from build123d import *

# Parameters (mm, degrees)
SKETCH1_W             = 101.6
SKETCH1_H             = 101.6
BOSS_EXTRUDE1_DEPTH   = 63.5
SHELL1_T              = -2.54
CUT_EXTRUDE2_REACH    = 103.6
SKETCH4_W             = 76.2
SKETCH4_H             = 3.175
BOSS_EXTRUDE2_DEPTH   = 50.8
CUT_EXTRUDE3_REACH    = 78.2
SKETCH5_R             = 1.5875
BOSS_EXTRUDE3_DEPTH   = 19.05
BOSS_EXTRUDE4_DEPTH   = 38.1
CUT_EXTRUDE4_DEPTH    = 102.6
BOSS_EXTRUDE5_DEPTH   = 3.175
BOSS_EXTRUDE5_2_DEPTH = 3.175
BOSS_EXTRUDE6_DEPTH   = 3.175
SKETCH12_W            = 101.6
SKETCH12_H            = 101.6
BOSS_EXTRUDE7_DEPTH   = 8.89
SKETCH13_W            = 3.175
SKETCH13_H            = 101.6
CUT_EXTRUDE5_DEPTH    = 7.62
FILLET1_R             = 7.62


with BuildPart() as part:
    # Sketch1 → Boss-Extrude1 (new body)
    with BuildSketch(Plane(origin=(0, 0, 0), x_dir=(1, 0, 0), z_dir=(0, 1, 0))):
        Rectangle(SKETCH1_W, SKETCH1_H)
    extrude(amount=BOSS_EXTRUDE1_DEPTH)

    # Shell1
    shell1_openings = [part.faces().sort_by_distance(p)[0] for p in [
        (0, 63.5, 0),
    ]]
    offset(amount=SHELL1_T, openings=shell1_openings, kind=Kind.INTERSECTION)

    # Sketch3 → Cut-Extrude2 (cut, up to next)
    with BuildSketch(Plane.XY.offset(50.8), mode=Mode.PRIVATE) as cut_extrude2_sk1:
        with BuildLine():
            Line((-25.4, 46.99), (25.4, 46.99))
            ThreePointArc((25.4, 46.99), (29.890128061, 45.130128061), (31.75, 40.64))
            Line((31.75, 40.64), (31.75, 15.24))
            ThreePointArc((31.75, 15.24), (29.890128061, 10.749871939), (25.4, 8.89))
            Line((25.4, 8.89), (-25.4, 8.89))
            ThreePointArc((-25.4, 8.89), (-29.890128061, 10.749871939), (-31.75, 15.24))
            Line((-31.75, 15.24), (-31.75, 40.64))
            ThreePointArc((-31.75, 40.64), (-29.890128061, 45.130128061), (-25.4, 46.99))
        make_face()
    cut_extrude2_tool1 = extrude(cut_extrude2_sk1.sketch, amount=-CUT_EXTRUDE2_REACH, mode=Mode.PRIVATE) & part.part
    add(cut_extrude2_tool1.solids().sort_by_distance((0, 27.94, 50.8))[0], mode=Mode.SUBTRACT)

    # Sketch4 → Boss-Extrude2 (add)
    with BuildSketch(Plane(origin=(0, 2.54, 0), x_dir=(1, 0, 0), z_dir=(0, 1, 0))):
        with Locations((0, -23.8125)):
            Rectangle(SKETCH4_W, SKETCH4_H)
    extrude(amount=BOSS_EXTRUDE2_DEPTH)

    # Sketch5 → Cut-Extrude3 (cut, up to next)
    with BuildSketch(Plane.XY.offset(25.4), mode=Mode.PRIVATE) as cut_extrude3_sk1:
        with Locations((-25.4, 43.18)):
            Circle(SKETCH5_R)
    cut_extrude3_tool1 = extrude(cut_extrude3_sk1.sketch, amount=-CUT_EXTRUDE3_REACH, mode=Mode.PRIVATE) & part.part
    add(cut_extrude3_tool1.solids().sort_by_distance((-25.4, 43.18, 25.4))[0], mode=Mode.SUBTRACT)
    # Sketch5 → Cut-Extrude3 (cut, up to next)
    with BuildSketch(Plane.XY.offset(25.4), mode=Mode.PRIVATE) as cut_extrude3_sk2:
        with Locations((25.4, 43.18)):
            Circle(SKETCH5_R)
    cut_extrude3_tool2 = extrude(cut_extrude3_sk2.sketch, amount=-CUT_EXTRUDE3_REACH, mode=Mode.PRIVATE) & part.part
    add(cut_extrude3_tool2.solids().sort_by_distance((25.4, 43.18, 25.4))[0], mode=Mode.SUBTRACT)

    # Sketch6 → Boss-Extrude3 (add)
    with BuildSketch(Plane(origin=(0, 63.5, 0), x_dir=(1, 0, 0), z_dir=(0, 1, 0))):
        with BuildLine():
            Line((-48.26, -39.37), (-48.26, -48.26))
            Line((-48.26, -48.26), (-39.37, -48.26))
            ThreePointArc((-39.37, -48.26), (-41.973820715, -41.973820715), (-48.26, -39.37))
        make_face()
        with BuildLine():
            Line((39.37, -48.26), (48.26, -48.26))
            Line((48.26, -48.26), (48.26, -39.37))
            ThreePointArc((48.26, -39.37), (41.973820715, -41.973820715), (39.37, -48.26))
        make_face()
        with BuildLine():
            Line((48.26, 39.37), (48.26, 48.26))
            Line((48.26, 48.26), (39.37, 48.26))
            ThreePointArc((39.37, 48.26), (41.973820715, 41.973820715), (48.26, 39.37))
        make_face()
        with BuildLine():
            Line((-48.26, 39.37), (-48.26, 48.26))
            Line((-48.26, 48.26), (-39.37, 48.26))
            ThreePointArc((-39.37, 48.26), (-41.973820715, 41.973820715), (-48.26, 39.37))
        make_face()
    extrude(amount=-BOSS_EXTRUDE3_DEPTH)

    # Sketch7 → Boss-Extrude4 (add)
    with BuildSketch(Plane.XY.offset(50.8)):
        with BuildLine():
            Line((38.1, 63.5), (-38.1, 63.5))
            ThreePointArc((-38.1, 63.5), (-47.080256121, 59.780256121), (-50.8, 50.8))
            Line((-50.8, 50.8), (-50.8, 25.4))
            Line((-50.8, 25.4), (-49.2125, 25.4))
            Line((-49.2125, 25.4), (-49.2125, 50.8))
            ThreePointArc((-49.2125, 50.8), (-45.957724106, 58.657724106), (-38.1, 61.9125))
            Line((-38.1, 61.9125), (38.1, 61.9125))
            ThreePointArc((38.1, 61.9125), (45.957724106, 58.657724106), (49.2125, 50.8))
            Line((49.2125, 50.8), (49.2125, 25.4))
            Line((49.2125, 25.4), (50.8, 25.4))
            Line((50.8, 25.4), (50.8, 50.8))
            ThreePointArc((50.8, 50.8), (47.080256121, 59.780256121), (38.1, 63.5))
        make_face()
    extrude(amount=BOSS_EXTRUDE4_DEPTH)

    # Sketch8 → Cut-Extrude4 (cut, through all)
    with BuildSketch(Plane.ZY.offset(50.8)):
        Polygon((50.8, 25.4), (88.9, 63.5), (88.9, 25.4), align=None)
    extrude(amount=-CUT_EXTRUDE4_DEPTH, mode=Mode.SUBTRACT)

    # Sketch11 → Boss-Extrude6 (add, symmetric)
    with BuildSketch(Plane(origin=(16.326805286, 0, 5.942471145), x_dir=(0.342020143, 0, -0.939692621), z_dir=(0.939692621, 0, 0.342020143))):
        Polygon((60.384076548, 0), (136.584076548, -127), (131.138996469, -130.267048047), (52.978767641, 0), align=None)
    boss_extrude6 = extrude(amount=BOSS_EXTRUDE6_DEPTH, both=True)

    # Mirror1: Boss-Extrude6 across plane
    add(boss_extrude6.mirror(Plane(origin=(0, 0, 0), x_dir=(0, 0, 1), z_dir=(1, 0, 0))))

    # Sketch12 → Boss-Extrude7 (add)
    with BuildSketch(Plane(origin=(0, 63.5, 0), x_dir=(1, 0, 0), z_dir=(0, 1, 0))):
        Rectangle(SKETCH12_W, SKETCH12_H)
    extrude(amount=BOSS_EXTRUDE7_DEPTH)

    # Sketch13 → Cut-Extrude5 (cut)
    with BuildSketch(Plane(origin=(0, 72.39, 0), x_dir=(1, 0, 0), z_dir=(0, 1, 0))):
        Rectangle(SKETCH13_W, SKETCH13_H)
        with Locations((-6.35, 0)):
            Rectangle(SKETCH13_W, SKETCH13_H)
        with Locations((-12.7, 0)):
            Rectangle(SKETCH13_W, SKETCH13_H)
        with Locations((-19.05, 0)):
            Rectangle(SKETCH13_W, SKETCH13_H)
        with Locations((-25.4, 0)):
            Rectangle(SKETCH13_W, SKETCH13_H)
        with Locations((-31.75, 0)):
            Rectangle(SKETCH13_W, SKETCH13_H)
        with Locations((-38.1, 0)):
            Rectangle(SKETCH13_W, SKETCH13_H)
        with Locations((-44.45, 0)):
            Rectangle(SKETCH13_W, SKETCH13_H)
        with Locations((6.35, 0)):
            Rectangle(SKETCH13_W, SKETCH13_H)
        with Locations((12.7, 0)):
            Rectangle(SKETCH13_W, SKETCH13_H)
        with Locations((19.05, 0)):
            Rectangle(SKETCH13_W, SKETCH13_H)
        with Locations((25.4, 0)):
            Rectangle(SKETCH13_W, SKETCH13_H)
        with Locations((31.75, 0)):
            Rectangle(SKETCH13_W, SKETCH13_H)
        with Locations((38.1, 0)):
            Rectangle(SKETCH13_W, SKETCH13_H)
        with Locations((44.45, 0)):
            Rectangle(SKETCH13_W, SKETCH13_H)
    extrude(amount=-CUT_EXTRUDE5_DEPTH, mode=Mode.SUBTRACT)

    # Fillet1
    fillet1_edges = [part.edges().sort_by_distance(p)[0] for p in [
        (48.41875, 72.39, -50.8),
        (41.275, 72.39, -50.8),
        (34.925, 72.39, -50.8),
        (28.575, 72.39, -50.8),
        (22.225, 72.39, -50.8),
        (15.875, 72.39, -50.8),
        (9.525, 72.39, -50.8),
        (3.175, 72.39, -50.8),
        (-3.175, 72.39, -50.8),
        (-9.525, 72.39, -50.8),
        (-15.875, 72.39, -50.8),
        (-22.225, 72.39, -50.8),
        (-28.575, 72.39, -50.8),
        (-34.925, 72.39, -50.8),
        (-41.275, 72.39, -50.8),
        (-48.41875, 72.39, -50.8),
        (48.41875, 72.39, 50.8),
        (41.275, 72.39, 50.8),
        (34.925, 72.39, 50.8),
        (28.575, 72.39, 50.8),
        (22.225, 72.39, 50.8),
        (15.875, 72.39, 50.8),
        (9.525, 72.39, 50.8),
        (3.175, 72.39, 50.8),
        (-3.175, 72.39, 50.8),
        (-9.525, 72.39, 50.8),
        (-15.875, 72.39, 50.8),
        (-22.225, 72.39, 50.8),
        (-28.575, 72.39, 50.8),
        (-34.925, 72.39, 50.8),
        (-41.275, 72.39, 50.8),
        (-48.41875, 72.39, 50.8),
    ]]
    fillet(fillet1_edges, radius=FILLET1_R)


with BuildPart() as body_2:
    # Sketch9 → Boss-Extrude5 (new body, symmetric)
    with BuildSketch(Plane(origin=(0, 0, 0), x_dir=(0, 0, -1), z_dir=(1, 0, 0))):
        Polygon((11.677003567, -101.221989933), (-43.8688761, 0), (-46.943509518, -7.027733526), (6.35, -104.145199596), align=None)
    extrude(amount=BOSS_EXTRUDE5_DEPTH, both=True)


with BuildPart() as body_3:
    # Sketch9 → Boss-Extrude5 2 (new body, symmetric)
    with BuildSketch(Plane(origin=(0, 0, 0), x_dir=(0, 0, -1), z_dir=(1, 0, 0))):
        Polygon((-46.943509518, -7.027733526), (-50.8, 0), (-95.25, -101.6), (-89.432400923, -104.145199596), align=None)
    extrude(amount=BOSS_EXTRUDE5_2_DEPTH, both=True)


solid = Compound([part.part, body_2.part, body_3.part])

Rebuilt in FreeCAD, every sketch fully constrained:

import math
import FreeCAD as App
import Part
import Sketcher
Q = App.Units.Quantity


def edges_at(feature, points):
    """Names of the edges that pass closest to the given points."""
    edges = feature.Shape.Edges
    near = lambda p: min(range(len(edges)), key=lambda i: edges[i].distToShape(Part.Vertex(*p))[0])
    return sorted({f"Edge{near(p) + 1}" for p in points})


def faces_at(feature, points):
    """Names of the faces that lie closest to the given points."""
    faces = feature.Shape.Faces
    near = lambda p: min(range(len(faces)), key=lambda i: faces[i].distToShape(Part.Vertex(*p))[0])
    return sorted({f"Face{near(p) + 1}" for p in points})

doc = App.newDocument("Part")
body = doc.addObject("PartDesign::Body", "Body")

sketch1 = body.newObject("Sketcher::SketchObject", "Sketch")
sketch1.AttachmentSupport = (doc.getObject("XZ_Plane"), [""])
sketch1.MapMode = "FlatFace"
sketch1.addGeometry([
    Part.LineSegment(App.Vector(-50.8, -50.8, 0), App.Vector(-50.8, 50.8, 0)),
    Part.LineSegment(App.Vector(-50.8, 50.8, 0), App.Vector(50.8, 50.8, 0)),
    Part.LineSegment(App.Vector(50.8, 50.8, 0), App.Vector(50.8, -50.8, 0)),
    Part.LineSegment(App.Vector(50.8, -50.8, 0), App.Vector(-50.8, -50.8, 0)),
], False)
sketch1.addConstraint([
    Sketcher.Constraint("Coincident", 0, 2, 1, 1),
    Sketcher.Constraint("Coincident", 1, 2, 2, 1),
    Sketcher.Constraint("Coincident", 2, 2, 3, 1),
    Sketcher.Constraint("Coincident", 3, 2, 0, 1),
    Sketcher.Constraint("Vertical", 0),
    Sketcher.Constraint("Horizontal", 1),
    Sketcher.Constraint("Vertical", 2),
    Sketcher.Constraint("Horizontal", 3),
    Sketcher.Constraint("Symmetric", 0, 2, 2, 2, -1, 1),
    Sketcher.Constraint("Equal", 3, 0),
    Sketcher.Constraint("DistanceX", 1, 1, 1, 2, Q("4 in")),
])
pad1 = body.newObject("PartDesign::Pad", "Pad")
pad1.Profile = sketch1
pad1.Length = Q("2.5 in")
pad1.Reversed = True
doc.recompute()

thickness = body.newObject("PartDesign::Thickness", "Thickness")
thickness.Base = (pad1, faces_at(pad1, [(0, 63.5, 0)]))
thickness.Value = Q("0.1 in")
thickness.Reversed = True
thickness.Join = "Intersection"

sketch2 = body.newObject("Sketcher::SketchObject", "Sketch001")
sketch2.AttachmentSupport = (doc.getObject("XY_Plane"), [""])
sketch2.MapMode = "FlatFace"
sketch2.AttachmentOffset = App.Placement(App.Vector(0, 0, 2 * 25.4), App.Rotation())
sketch2.addGeometry([
    Part.LineSegment(App.Vector(25.4, 46.99, 0), App.Vector(-25.4, 46.99, 0)),
    Part.ArcOfCircle(Part.Circle(App.Vector(-25.4, 40.64, 0), App.Vector(0, 0, 1), 6.35), math.radians(90), math.radians(180)),
    Part.LineSegment(App.Vector(-31.75, 40.64, 0), App.Vector(-31.75, 15.24, 0)),
    Part.ArcOfCircle(Part.Circle(App.Vector(-25.4, 15.24, 0), App.Vector(0, 0, 1), 6.35), math.radians(180), math.radians(270)),
    Part.LineSegment(App.Vector(-25.4, 8.89, 0), App.Vector(25.4, 8.89, 0)),
    Part.ArcOfCircle(Part.Circle(App.Vector(25.4, 15.24, 0), App.Vector(0, 0, 1), 6.35), math.radians(-90), math.radians(0)),
    Part.LineSegment(App.Vector(31.75, 15.24, 0), App.Vector(31.75, 40.64, 0)),
    Part.ArcOfCircle(Part.Circle(App.Vector(25.4, 40.64, 0), App.Vector(0, 0, 1), 6.35), math.radians(0), math.radians(90)),
], False)
sketch2.addConstraint([
    Sketcher.Constraint("Tangent", 0, 2, 1, 1),
    Sketcher.Constraint("Tangent", 1, 2, 2, 1),
    Sketcher.Constraint("Tangent", 2, 2, 3, 1),
    Sketcher.Constraint("Tangent", 3, 2, 4, 1),
    Sketcher.Constraint("Tangent", 4, 2, 5, 1),
    Sketcher.Constraint("Tangent", 5, 2, 6, 1),
    Sketcher.Constraint("Tangent", 6, 2, 7, 1),
    Sketcher.Constraint("Tangent", 7, 2, 0, 1),
    Sketcher.Constraint("Horizontal", 0),
    Sketcher.Constraint("Vertical", 2),
    Sketcher.Constraint("Horizontal", 4),
    Sketcher.Constraint("Vertical", 6),
    Sketcher.Constraint("Equal", 1, 3),
    Sketcher.Constraint("Equal", 3, 5),
    Sketcher.Constraint("Equal", 5, 7),
    Sketcher.Constraint("DistanceX", 0, 2, 0, 1, Q("2 in")),
    Sketcher.Constraint("DistanceY", 2, 2, 2, 1, Q("1 in")),
    Sketcher.Constraint("Radius", 1, Q("0.25 in")),
    Sketcher.Constraint("DistanceX", 1, 3, -1, 1, Q("1 in")),
    Sketcher.Constraint("DistanceY", -1, 1, 1, 3, Q("1.6 in")),
])
pocket1 = body.newObject("PartDesign::Pocket", "Pocket")
pocket1.Profile = sketch2
pocket1.Type = "UpToFirst"

sketch3 = body.newObject("Sketcher::SketchObject", "Sketch002")
sketch3.AttachmentSupport = (doc.getObject("XZ_Plane"), [""])
sketch3.MapMode = "FlatFace"
sketch3.AttachmentOffset = App.Placement(App.Vector(0, 0, -0.1 * 25.4), App.Rotation())
sketch3.addGeometry([
    Part.LineSegment(App.Vector(-38.1, 22.225, 0), App.Vector(-38.1, 25.4, 0)),
    Part.LineSegment(App.Vector(-38.1, 25.4, 0), App.Vector(38.1, 25.4, 0)),
    Part.LineSegment(App.Vector(38.1, 25.4, 0), App.Vector(38.1, 22.225, 0)),
    Part.LineSegment(App.Vector(38.1, 22.225, 0), App.Vector(-38.1, 22.225, 0)),
], False)
sketch3.addConstraint([
    Sketcher.Constraint("Coincident", 0, 2, 1, 1),
    Sketcher.Constraint("Coincident", 1, 2, 2, 1),
    Sketcher.Constraint("Coincident", 2, 2, 3, 1),
    Sketcher.Constraint("Coincident", 3, 2, 0, 1),
    Sketcher.Constraint("Vertical", 0),
    Sketcher.Constraint("Horizontal", 1),
    Sketcher.Constraint("Vertical", 2),
    Sketcher.Constraint("Horizontal", 3),
    Sketcher.Constraint("DistanceX", 1, 1, 1, 2, Q("3 in")),
    Sketcher.Constraint("DistanceY", -1, 1, 0, 2, Q("1 in")),
    Sketcher.Constraint("DistanceX", 0, 2, -1, 1, Q("1.5 in")),
    Sketcher.Constraint("DistanceY", 0, 1, 0, 2, Q("0.125 in")),
])
pad2 = body.newObject("PartDesign::Pad", "Pad001")
pad2.Profile = sketch3
pad2.Length = Q("2 in")
pad2.Reversed = True

sketch4 = body.newObject("Sketcher::SketchObject", "Sketch003")
sketch4.AttachmentSupport = (doc.getObject("XY_Plane"), [""])
sketch4.MapMode = "FlatFace"
sketch4.AttachmentOffset = App.Placement(App.Vector(0, 0, 1 * 25.4), App.Rotation())
sketch4.addGeometry(Part.Circle(App.Vector(-25.4, 43.18, 0), App.Vector(0, 0, 1), 1.5875), False)
sketch4.addConstraint([
    Sketcher.Constraint("Diameter", 0, Q("0.125 in")),
    Sketcher.Constraint("DistanceX", 0, 3, -1, 1, Q("1 in")),
    Sketcher.Constraint("DistanceY", -1, 1, 0, 3, Q("1.7 in")),
])
pocket2 = body.newObject("PartDesign::Pocket", "Pocket001")
pocket2.Profile = sketch4
pocket2.Type = "UpToFirst"

sketch5 = body.newObject("Sketcher::SketchObject", "Sketch004")
sketch5.AttachmentSupport = (doc.getObject("XY_Plane"), [""])
sketch5.MapMode = "FlatFace"
sketch5.AttachmentOffset = App.Placement(App.Vector(0, 0, 1 * 25.4), App.Rotation())
sketch5.addGeometry(Part.Circle(App.Vector(25.4, 43.18, 0), App.Vector(0, 0, 1), 1.5875), False)
sketch5.addConstraint([
    Sketcher.Constraint("Diameter", 0, Q("0.125 in")),
    Sketcher.Constraint("DistanceX", -1, 1, 0, 3, Q("1 in")),
    Sketcher.Constraint("DistanceY", -1, 1, 0, 3, Q("1.7 in")),
])
pocket3 = body.newObject("PartDesign::Pocket", "Pocket002")
pocket3.Profile = sketch5
pocket3.Type = "UpToFirst"

sketch6 = body.newObject("Sketcher::SketchObject", "Sketch005")
sketch6.AttachmentSupport = (doc.getObject("XZ_Plane"), [""])
sketch6.MapMode = "FlatFace"
sketch6.AttachmentOffset = App.Placement(App.Vector(0, 0, -2.5 * 25.4), App.Rotation())
sketch6.addGeometry([
    Part.LineSegment(App.Vector(-48.26, 39.37, 0), App.Vector(-48.26, 48.26, 0)),
    Part.LineSegment(App.Vector(-48.26, 48.26, 0), App.Vector(-39.37, 48.26, 0)),
    Part.ArcOfCircle(Part.Circle(App.Vector(-48.26, 48.26, 0), App.Vector(0, 0, 1), 8.89), math.radians(-90), math.radians(0)),
    Part.LineSegment(App.Vector(39.37, 48.26, 0), App.Vector(48.26, 48.26, 0)),
    Part.LineSegment(App.Vector(48.26, 48.26, 0), App.Vector(48.26, 39.37, 0)),
    Part.ArcOfCircle(Part.Circle(App.Vector(48.26, 48.26, 0), App.Vector(0, 0, 1), 8.89), math.radians(180), math.radians(270)),
    Part.LineSegment(App.Vector(48.26, -39.37, 0), App.Vector(48.26, -48.26, 0)),
    Part.LineSegment(App.Vector(48.26, -48.26, 0), App.Vector(39.37, -48.26, 0)),
    Part.ArcOfCircle(Part.Circle(App.Vector(48.26, -48.26, 0), App.Vector(0, 0, 1), 8.89), math.radians(90), math.radians(180)),
    Part.LineSegment(App.Vector(-48.26, -48.26, 0), App.Vector(-48.26, -39.37, 0)),
    Part.ArcOfCircle(Part.Circle(App.Vector(-48.26, -48.26, 0), App.Vector(0, 0, 1), 8.89), math.radians(0), math.radians(90)),
    Part.LineSegment(App.Vector(-39.37, -48.26, 0), App.Vector(-48.26, -48.26, 0)),
], False)
sketch6.addConstraint([
    Sketcher.Constraint("Coincident", 0, 2, 1, 1),
    Sketcher.Constraint("Coincident", 1, 2, 2, 2),
    Sketcher.Constraint("Coincident", 2, 1, 0, 1),
    Sketcher.Constraint("Coincident", 3, 2, 4, 1),
    Sketcher.Constraint("Coincident", 4, 2, 5, 2),
    Sketcher.Constraint("Coincident", 5, 1, 3, 1),
    Sketcher.Constraint("Coincident", 6, 2, 7, 1),
    Sketcher.Constraint("Coincident", 7, 2, 8, 2),
    Sketcher.Constraint("Coincident", 8, 1, 6, 1),
    Sketcher.Constraint("Coincident", 9, 2, 10, 2),
    Sketcher.Constraint("Coincident", 10, 1, 11, 1),
    Sketcher.Constraint("Coincident", 11, 2, 9, 1),
    Sketcher.Constraint("Vertical", 0),
    Sketcher.Constraint("Horizontal", 1),
    Sketcher.Constraint("Horizontal", 3),
    Sketcher.Constraint("Vertical", 4),
    Sketcher.Constraint("Vertical", 6),
    Sketcher.Constraint("Horizontal", 7),
    Sketcher.Constraint("Vertical", 9),
    Sketcher.Constraint("Horizontal", 11),
    Sketcher.Constraint("Coincident", 0, 2, 2, 3),
    Sketcher.Constraint("Coincident", 3, 2, 5, 3),
    Sketcher.Constraint("Coincident", 6, 2, 8, 3),
    Sketcher.Constraint("Coincident", 11, 2, 10, 3),
    Sketcher.Constraint("Equal", 2, 5),
    Sketcher.Constraint("Equal", 5, 8),
    Sketcher.Constraint("Equal", 8, 10),
    Sketcher.Constraint("Symmetric", 2, 3, 8, 3, -1, 1),
    Sketcher.Constraint("Symmetric", 5, 3, 10, 3, -1, 1),
    Sketcher.Constraint("Symmetric", 2, 3, 5, 3, -2),
    Sketcher.Constraint("Radius", 2, Q("0.35 in")),
    Sketcher.Constraint("DistanceX", 2, 3, -1, 1, Q("1.9 in")),
    Sketcher.Constraint("DistanceY", -1, 1, 2, 3, Q("1.9 in")),
])
pad3 = body.newObject("PartDesign::Pad", "Pad002")
pad3.Profile = sketch6
pad3.Length = Q("0.75 in")

sketch7 = body.newObject("Sketcher::SketchObject", "Sketch006")
sketch7.AttachmentSupport = (doc.getObject("XY_Plane"), [""])
sketch7.MapMode = "FlatFace"
sketch7.AttachmentOffset = App.Placement(App.Vector(0, 0, 2 * 25.4), App.Rotation())
sketch7.addGeometry([
    Part.LineSegment(App.Vector(38.1, 63.5, 0), App.Vector(-38.1, 63.5, 0)),
    Part.ArcOfCircle(Part.Circle(App.Vector(-38.1, 50.8, 0), App.Vector(0, 0, 1), 12.7), math.radians(90), math.radians(180)),
    Part.LineSegment(App.Vector(-50.8, 50.8, 0), App.Vector(-50.8, 25.4, 0)),
    Part.LineSegment(App.Vector(-50.8, 25.4, 0), App.Vector(-49.2125, 25.4, 0)),
    Part.LineSegment(App.Vector(-49.2125, 25.4, 0), App.Vector(-49.2125, 50.8, 0)),
    Part.ArcOfCircle(Part.Circle(App.Vector(-38.1, 50.8, 0), App.Vector(0, 0, 1), 11.1125), math.radians(90), math.radians(180)),
    Part.LineSegment(App.Vector(-38.1, 61.9125, 0), App.Vector(38.1, 61.9125, 0)),
    Part.ArcOfCircle(Part.Circle(App.Vector(38.1, 50.8, 0), App.Vector(0, 0, 1), 11.1125), math.radians(0), math.radians(90)),
    Part.LineSegment(App.Vector(49.2125, 50.8, 0), App.Vector(49.2125, 25.4, 0)),
    Part.LineSegment(App.Vector(49.2125, 25.4, 0), App.Vector(50.8, 25.4, 0)),
    Part.LineSegment(App.Vector(50.8, 25.4, 0), App.Vector(50.8, 50.8, 0)),
    Part.ArcOfCircle(Part.Circle(App.Vector(38.1, 50.8, 0), App.Vector(0, 0, 1), 12.7), math.radians(0), math.radians(90)),
], False)
sketch7.addConstraint([
    Sketcher.Constraint("Tangent", 0, 2, 1, 1),
    Sketcher.Constraint("Tangent", 1, 2, 2, 1),
    Sketcher.Constraint("Coincident", 2, 2, 3, 1),
    Sketcher.Constraint("Coincident", 3, 2, 4, 1),
    Sketcher.Constraint("Tangent", 4, 2, 5, 2),
    Sketcher.Constraint("Tangent", 5, 1, 6, 1),
    Sketcher.Constraint("Tangent", 6, 2, 7, 2),
    Sketcher.Constraint("Tangent", 7, 1, 8, 1),
    Sketcher.Constraint("Coincident", 8, 2, 9, 1),
    Sketcher.Constraint("Coincident", 9, 2, 10, 1),
    Sketcher.Constraint("Tangent", 10, 2, 11, 1),
    Sketcher.Constraint("Tangent", 11, 2, 0, 1),
    Sketcher.Constraint("Horizontal", 0),
    Sketcher.Constraint("Vertical", 2),
    Sketcher.Constraint("Horizontal", 3),
    Sketcher.Constraint("Vertical", 4),
    Sketcher.Constraint("Horizontal", 6),
    Sketcher.Constraint("Vertical", 8),
    Sketcher.Constraint("Horizontal", 9),
    Sketcher.Constraint("Vertical", 10),
    Sketcher.Constraint("Coincident", 5, 3, 1, 3),
    Sketcher.Constraint("Coincident", 11, 3, 7, 3),
    Sketcher.Constraint("Equal", 5, 7),
    Sketcher.Constraint("Symmetric", 3, 2, 8, 2, -2),
    Sketcher.Constraint("Radius", 1, Q("0.5 in")),
    Sketcher.Constraint("DistanceX", 0, 2, 0, 1, Q("3 in")),
    Sketcher.Constraint("DistanceY", 2, 2, 2, 1, Q("1 in")),
    Sketcher.Constraint("DistanceY", -1, 1, 1, 3, Q("2 in")),
    Sketcher.Constraint("Radius", 5, Q("0.4375 in")),
])
pad4 = body.newObject("PartDesign::Pad", "Pad003")
pad4.Profile = sketch7
pad4.Length = Q("1.5 in")

sketch8 = body.newObject("Sketcher::SketchObject", "Sketch007")
sketch8.AttachmentSupport = (doc.getObject("YZ_Plane"), [""])
sketch8.MapMode = "FlatFace"
sketch8.AttachmentOffset = App.Placement(App.Vector(0, 0, -2 * 25.4), App.Rotation())
sketch8.addGeometry([
    Part.LineSegment(App.Vector(63.5, 88.9, 0), App.Vector(25.4, 50.8, 0)),
    Part.LineSegment(App.Vector(25.4, 50.8, 0), App.Vector(25.4, 88.9, 0)),
    Part.LineSegment(App.Vector(25.4, 88.9, 0), App.Vector(63.5, 88.9, 0)),
], False)
sketch8.addConstraint([
    Sketcher.Constraint("Coincident", 0, 2, 1, 1),
    Sketcher.Constraint("Coincident", 1, 2, 2, 1),
    Sketcher.Constraint("Coincident", 2, 2, 0, 1),
    Sketcher.Constraint("Vertical", 1),
    Sketcher.Constraint("Horizontal", 2),
    Sketcher.Constraint("Equal", 2, 1),
    Sketcher.Constraint("DistanceX", 2, 1, 2, 2, Q("1.5 in")),
    Sketcher.Constraint("DistanceX", -1, 1, 0, 2, Q("1 in")),
    Sketcher.Constraint("DistanceY", -1, 1, 0, 2, Q("2 in")),
])
pocket4 = body.newObject("PartDesign::Pocket", "Pocket003")
pocket4.Profile = sketch8
pocket4.Type = "ThroughAll"
pocket4.Reversed = True

sketch9 = body.newObject("Sketcher::SketchObject", "Sketch008")
sketch9.Placement = App.Placement(App.Vector(16.326805, 0, 5.942471), App.Rotation(App.Vector(0.342020143, 0, -0.939692621), App.Vector(0, 1, 0), App.Vector(0.939692621, 0, 0.342020143), "ZXY"))
sketch9.addGeometry([
    Part.LineSegment(App.Vector(136.584077, -127, 0), App.Vector(60.384077, 0, 0)),
    Part.LineSegment(App.Vector(60.384077, 0, 0), App.Vector(52.978768, 0, 0)),
    Part.LineSegment(App.Vector(52.978768, 0, 0), App.Vector(131.138996, -130.267048, 0)),
    Part.LineSegment(App.Vector(131.138996, -130.267048, 0), App.Vector(136.584077, -127, 0)),
], False)
sketch9.addConstraint([
    Sketcher.Constraint("Coincident", 0, 2, 1, 1),
    Sketcher.Constraint("Coincident", 1, 2, 2, 1),
    Sketcher.Constraint("Coincident", 2, 2, 3, 1),
    Sketcher.Constraint("Coincident", 3, 2, 0, 1),
    Sketcher.Constraint("Horizontal", 1),
    Sketcher.Constraint("PointOnObject", 0, 2, -1),
    Sketcher.Constraint("Parallel", 0, 2),
    Sketcher.Constraint("Perpendicular", 2, 3),
    Sketcher.Constraint("DistanceY", 3, 2, -1, 1, Q("5 in")),
    Sketcher.Constraint("DistanceX", 0, 2, 3, 2, Q("3 in")),
    Sketcher.Constraint("Distance", 3, Q("0.25 in")),
    Sketcher.Constraint("DistanceX", -1, 1, 0, 2, Q("60.384077 mm")),
])
pad5 = body.newObject("PartDesign::Pad", "Pad004")
pad5.Profile = sketch9
pad5.Length = Q("0.25 in")
pad5.Midplane = True
doc.recompute()

mirrored = body.newObject("PartDesign::Mirrored", "Mirrored")
mirrored.Originals = [pad5]
mirrored.MirrorPlane = (doc.getObject("YZ_Plane"), [""])
body.Tip = mirrored

sketch10 = body.newObject("Sketcher::SketchObject", "Sketch009")
sketch10.AttachmentSupport = (doc.getObject("XZ_Plane"), [""])
sketch10.MapMode = "FlatFace"
sketch10.AttachmentOffset = App.Placement(App.Vector(0, 0, -2.5 * 25.4), App.Rotation())
sketch10.addGeometry([
    Part.LineSegment(App.Vector(-50.8, -50.8, 0), App.Vector(-50.8, 50.8, 0)),
    Part.LineSegment(App.Vector(-50.8, 50.8, 0), App.Vector(50.8, 50.8, 0)),
    Part.LineSegment(App.Vector(50.8, 50.8, 0), App.Vector(50.8, -50.8, 0)),
    Part.LineSegment(App.Vector(50.8, -50.8, 0), App.Vector(-50.8, -50.8, 0)),
], False)
sketch10.addConstraint([
    Sketcher.Constraint("Coincident", 0, 2, 1, 1),
    Sketcher.Constraint("Coincident", 1, 2, 2, 1),
    Sketcher.Constraint("Coincident", 2, 2, 3, 1),
    Sketcher.Constraint("Coincident", 3, 2, 0, 1),
    Sketcher.Constraint("Vertical", 0),
    Sketcher.Constraint("Horizontal", 1),
    Sketcher.Constraint("Vertical", 2),
    Sketcher.Constraint("Horizontal", 3),
    Sketcher.Constraint("Symmetric", 0, 2, 2, 2, -1, 1),
    Sketcher.Constraint("Equal", 3, 0),
    Sketcher.Constraint("DistanceX", 1, 1, 1, 2, Q("4 in")),
])
pad6 = body.newObject("PartDesign::Pad", "Pad005")
pad6.Profile = sketch10
pad6.Length = Q("0.35 in")
pad6.Reversed = True

sketch11 = body.newObject("Sketcher::SketchObject", "Sketch010")
sketch11.AttachmentSupport = (doc.getObject("XZ_Plane"), [""])
sketch11.MapMode = "FlatFace"
sketch11.AttachmentOffset = App.Placement(App.Vector(0, 0, -2.85 * 25.4), App.Rotation())
sketch11.addGeometry([
    Part.LineSegment(App.Vector(-1.5875, -50.8, 0), App.Vector(-1.5875, 50.8, 0)),
    Part.LineSegment(App.Vector(-1.5875, 50.8, 0), App.Vector(1.5875, 50.8, 0)),
    Part.LineSegment(App.Vector(1.5875, 50.8, 0), App.Vector(1.5875, -50.8, 0)),
    Part.LineSegment(App.Vector(1.5875, -50.8, 0), App.Vector(-1.5875, -50.8, 0)),
    Part.LineSegment(App.Vector(-7.9375, -50.8, 0), App.Vector(-7.9375, 50.8, 0)),
    Part.LineSegment(App.Vector(-7.9375, 50.8, 0), App.Vector(-4.7625, 50.8, 0)),
    Part.LineSegment(App.Vector(-4.7625, 50.8, 0), App.Vector(-4.7625, -50.8, 0)),
    Part.LineSegment(App.Vector(-4.7625, -50.8, 0), App.Vector(-7.9375, -50.8, 0)),
    Part.LineSegment(App.Vector(-14.2875, -50.8, 0), App.Vector(-14.2875, 50.8, 0)),
    Part.LineSegment(App.Vector(-14.2875, 50.8, 0), App.Vector(-11.1125, 50.8, 0)),
    Part.LineSegment(App.Vector(-11.1125, 50.8, 0), App.Vector(-11.1125, -50.8, 0)),
    Part.LineSegment(App.Vector(-11.1125, -50.8, 0), App.Vector(-14.2875, -50.8, 0)),
    Part.LineSegment(App.Vector(-20.6375, -50.8, 0), App.Vector(-20.6375, 50.8, 0)),
    Part.LineSegment(App.Vector(-20.6375, 50.8, 0), App.Vector(-17.4625, 50.8, 0)),
    Part.LineSegment(App.Vector(-17.4625, 50.8, 0), App.Vector(-17.4625, -50.8, 0)),
    Part.LineSegment(App.Vector(-17.4625, -50.8, 0), App.Vector(-20.6375, -50.8, 0)),
    Part.LineSegment(App.Vector(-26.9875, -50.8, 0), App.Vector(-26.9875, 50.8, 0)),
    Part.LineSegment(App.Vector(-26.9875, 50.8, 0), App.Vector(-23.8125, 50.8, 0)),
    Part.LineSegment(App.Vector(-23.8125, 50.8, 0), App.Vector(-23.8125, -50.8, 0)),
    Part.LineSegment(App.Vector(-23.8125, -50.8, 0), App.Vector(-26.9875, -50.8, 0)),
    Part.LineSegment(App.Vector(-33.3375, -50.8, 0), App.Vector(-33.3375, 50.8, 0)),
    Part.LineSegment(App.Vector(-33.3375, 50.8, 0), App.Vector(-30.1625, 50.8, 0)),
    Part.LineSegment(App.Vector(-30.1625, 50.8, 0), App.Vector(-30.1625, -50.8, 0)),
    Part.LineSegment(App.Vector(-30.1625, -50.8, 0), App.Vector(-33.3375, -50.8, 0)),
    Part.LineSegment(App.Vector(-39.6875, -50.8, 0), App.Vector(-39.6875, 50.8, 0)),
    Part.LineSegment(App.Vector(-39.6875, 50.8, 0), App.Vector(-36.5125, 50.8, 0)),
    Part.LineSegment(App.Vector(-36.5125, 50.8, 0), App.Vector(-36.5125, -50.8, 0)),
    Part.LineSegment(App.Vector(-36.5125, -50.8, 0), App.Vector(-39.6875, -50.8, 0)),
    Part.LineSegment(App.Vector(-46.0375, -50.8, 0), App.Vector(-46.0375, 50.8, 0)),
    Part.LineSegment(App.Vector(-46.0375, 50.8, 0), App.Vector(-42.8625, 50.8, 0)),
    Part.LineSegment(App.Vector(-42.8625, 50.8, 0), App.Vector(-42.8625, -50.8, 0)),
    Part.LineSegment(App.Vector(-42.8625, -50.8, 0), App.Vector(-46.0375, -50.8, 0)),
    Part.LineSegment(App.Vector(4.7625, -50.8, 0), App.Vector(4.7625, 50.8, 0)),
    Part.LineSegment(App.Vector(4.7625, 50.8, 0), App.Vector(7.9375, 50.8, 0)),
    Part.LineSegment(App.Vector(7.9375, 50.8, 0), App.Vector(7.9375, -50.8, 0)),
    Part.LineSegment(App.Vector(7.9375, -50.8, 0), App.Vector(4.7625, -50.8, 0)),
    Part.LineSegment(App.Vector(11.1125, -50.8, 0), App.Vector(11.1125, 50.8, 0)),
    Part.LineSegment(App.Vector(11.1125, 50.8, 0), App.Vector(14.2875, 50.8, 0)),
    Part.LineSegment(App.Vector(14.2875, 50.8, 0), App.Vector(14.2875, -50.8, 0)),
    Part.LineSegment(App.Vector(14.2875, -50.8, 0), App.Vector(11.1125, -50.8, 0)),
    Part.LineSegment(App.Vector(17.4625, -50.8, 0), App.Vector(17.4625, 50.8, 0)),
    Part.LineSegment(App.Vector(17.4625, 50.8, 0), App.Vector(20.6375, 50.8, 0)),
    Part.LineSegment(App.Vector(20.6375, 50.8, 0), App.Vector(20.6375, -50.8, 0)),
    Part.LineSegment(App.Vector(20.6375, -50.8, 0), App.Vector(17.4625, -50.8, 0)),
    Part.LineSegment(App.Vector(23.8125, -50.8, 0), App.Vector(23.8125, 50.8, 0)),
    Part.LineSegment(App.Vector(23.8125, 50.8, 0), App.Vector(26.9875, 50.8, 0)),
    Part.LineSegment(App.Vector(26.9875, 50.8, 0), App.Vector(26.9875, -50.8, 0)),
    Part.LineSegment(App.Vector(26.9875, -50.8, 0), App.Vector(23.8125, -50.8, 0)),
    Part.LineSegment(App.Vector(30.1625, -50.8, 0), App.Vector(30.1625, 50.8, 0)),
    Part.LineSegment(App.Vector(30.1625, 50.8, 0), App.Vector(33.3375, 50.8, 0)),
    Part.LineSegment(App.Vector(33.3375, 50.8, 0), App.Vector(33.3375, -50.8, 0)),
    Part.LineSegment(App.Vector(33.3375, -50.8, 0), App.Vector(30.1625, -50.8, 0)),
    Part.LineSegment(App.Vector(36.5125, -50.8, 0), App.Vector(36.5125, 50.8, 0)),
    Part.LineSegment(App.Vector(36.5125, 50.8, 0), App.Vector(39.6875, 50.8, 0)),
    Part.LineSegment(App.Vector(39.6875, 50.8, 0), App.Vector(39.6875, -50.8, 0)),
    Part.LineSegment(App.Vector(39.6875, -50.8, 0), App.Vector(36.5125, -50.8, 0)),
    Part.LineSegment(App.Vector(42.8625, -50.8, 0), App.Vector(42.8625, 50.8, 0)),
    Part.LineSegment(App.Vector(42.8625, 50.8, 0), App.Vector(46.0375, 50.8, 0)),
    Part.LineSegment(App.Vector(46.0375, 50.8, 0), App.Vector(46.0375, -50.8, 0)),
    Part.LineSegment(App.Vector(46.0375, -50.8, 0), App.Vector(42.8625, -50.8, 0)),
], False)
sketch11.addConstraint([
    Sketcher.Constraint("Coincident", 0, 2, 1, 1),
    Sketcher.Constraint("Coincident", 1, 2, 2, 1),
    Sketcher.Constraint("Coincident", 2, 2, 3, 1),
    Sketcher.Constraint("Coincident", 3, 2, 0, 1),
    Sketcher.Constraint("Coincident", 4, 2, 5, 1),
    Sketcher.Constraint("Coincident", 5, 2, 6, 1),
    Sketcher.Constraint("Coincident", 6, 2, 7, 1),
    Sketcher.Constraint("Coincident", 7, 2, 4, 1),
    Sketcher.Constraint("Coincident", 8, 2, 9, 1),
    Sketcher.Constraint("Coincident", 9, 2, 10, 1),
    Sketcher.Constraint("Coincident", 10, 2, 11, 1),
    Sketcher.Constraint("Coincident", 11, 2, 8, 1),
    Sketcher.Constraint("Coincident", 12, 2, 13, 1),
    Sketcher.Constraint("Coincident", 13, 2, 14, 1),
    Sketcher.Constraint("Coincident", 14, 2, 15, 1),
    Sketcher.Constraint("Coincident", 15, 2, 12, 1),
    Sketcher.Constraint("Coincident", 16, 2, 17, 1),
    Sketcher.Constraint("Coincident", 17, 2, 18, 1),
    Sketcher.Constraint("Coincident", 18, 2, 19, 1),
    Sketcher.Constraint("Coincident", 19, 2, 16, 1),
    Sketcher.Constraint("Coincident", 20, 2, 21, 1),
    Sketcher.Constraint("Coincident", 21, 2, 22, 1),
    Sketcher.Constraint("Coincident", 22, 2, 23, 1),
    Sketcher.Constraint("Coincident", 23, 2, 20, 1),
    Sketcher.Constraint("Coincident", 24, 2, 25, 1),
    Sketcher.Constraint("Coincident", 25, 2, 26, 1),
    Sketcher.Constraint("Coincident", 26, 2, 27, 1),
    Sketcher.Constraint("Coincident", 27, 2, 24, 1),
    Sketcher.Constraint("Coincident", 28, 2, 29, 1),
    Sketcher.Constraint("Coincident", 29, 2, 30, 1),
    Sketcher.Constraint("Coincident", 30, 2, 31, 1),
    Sketcher.Constraint("Coincident", 31, 2, 28, 1),
    Sketcher.Constraint("Coincident", 32, 2, 33, 1),
    Sketcher.Constraint("Coincident", 33, 2, 34, 1),
    Sketcher.Constraint("Coincident", 34, 2, 35, 1),
    Sketcher.Constraint("Coincident", 35, 2, 32, 1),
    Sketcher.Constraint("Coincident", 36, 2, 37, 1),
    Sketcher.Constraint("Coincident", 37, 2, 38, 1),
    Sketcher.Constraint("Coincident", 38, 2, 39, 1),
    Sketcher.Constraint("Coincident", 39, 2, 36, 1),
    Sketcher.Constraint("Coincident", 40, 2, 41, 1),
    Sketcher.Constraint("Coincident", 41, 2, 42, 1),
    Sketcher.Constraint("Coincident", 42, 2, 43, 1),
    Sketcher.Constraint("Coincident", 43, 2, 40, 1),
    Sketcher.Constraint("Coincident", 44, 2, 45, 1),
    Sketcher.Constraint("Coincident", 45, 2, 46, 1),
    Sketcher.Constraint("Coincident", 46, 2, 47, 1),
    Sketcher.Constraint("Coincident", 47, 2, 44, 1),
    Sketcher.Constraint("Coincident", 48, 2, 49, 1),
    Sketcher.Constraint("Coincident", 49, 2, 50, 1),
    Sketcher.Constraint("Coincident", 50, 2, 51, 1),
    Sketcher.Constraint("Coincident", 51, 2, 48, 1),
    Sketcher.Constraint("Coincident", 52, 2, 53, 1),
    Sketcher.Constraint("Coincident", 53, 2, 54, 1),
    Sketcher.Constraint("Coincident", 54, 2, 55, 1),
    Sketcher.Constraint("Coincident", 55, 2, 52, 1),
    Sketcher.Constraint("Coincident", 56, 2, 57, 1),
    Sketcher.Constraint("Coincident", 57, 2, 58, 1),
    Sketcher.Constraint("Coincident", 58, 2, 59, 1),
    Sketcher.Constraint("Coincident", 59, 2, 56, 1),
    Sketcher.Constraint("Vertical", 0),
    Sketcher.Constraint("Horizontal", 1),
    Sketcher.Constraint("Vertical", 2),
    Sketcher.Constraint("Horizontal", 3),
    Sketcher.Constraint("Vertical", 4),
    Sketcher.Constraint("Horizontal", 5),
    Sketcher.Constraint("Vertical", 6),
    Sketcher.Constraint("Horizontal", 7),
    Sketcher.Constraint("Vertical", 8),
    Sketcher.Constraint("Horizontal", 9),
    Sketcher.Constraint("Vertical", 10),
    Sketcher.Constraint("Horizontal", 11),
    Sketcher.Constraint("Vertical", 12),
    Sketcher.Constraint("Horizontal", 13),
    Sketcher.Constraint("Vertical", 14),
    Sketcher.Constraint("Horizontal", 15),
    Sketcher.Constraint("Vertical", 16),
    Sketcher.Constraint("Horizontal", 17),
    Sketcher.Constraint("Vertical", 18),
    Sketcher.Constraint("Horizontal", 19),
    Sketcher.Constraint("Vertical", 20),
    Sketcher.Constraint("Horizontal", 21),
    Sketcher.Constraint("Vertical", 22),
    Sketcher.Constraint("Horizontal", 23),
    Sketcher.Constraint("Vertical", 24),
    Sketcher.Constraint("Horizontal", 25),
    Sketcher.Constraint("Vertical", 26),
    Sketcher.Constraint("Horizontal", 27),
    Sketcher.Constraint("Vertical", 28),
    Sketcher.Constraint("Horizontal", 29),
    Sketcher.Constraint("Vertical", 30),
    Sketcher.Constraint("Horizontal", 31),
    Sketcher.Constraint("Vertical", 32),
    Sketcher.Constraint("Horizontal", 33),
    Sketcher.Constraint("Vertical", 34),
    Sketcher.Constraint("Horizontal", 35),
    Sketcher.Constraint("Vertical", 36),
    Sketcher.Constraint("Horizontal", 37),
    Sketcher.Constraint("Vertical", 38),
    Sketcher.Constraint("Horizontal", 39),
    Sketcher.Constraint("Vertical", 40),
    Sketcher.Constraint("Horizontal", 41),
    Sketcher.Constraint("Vertical", 42),
    Sketcher.Constraint("Horizontal", 43),
    Sketcher.Constraint("Vertical", 44),
    Sketcher.Constraint("Horizontal", 45),
    Sketcher.Constraint("Vertical", 46),
    Sketcher.Constraint("Horizontal", 47),
    Sketcher.Constraint("Vertical", 48),
    Sketcher.Constraint("Horizontal", 49),
    Sketcher.Constraint("Vertical", 50),
    Sketcher.Constraint("Horizontal", 51),
    Sketcher.Constraint("Vertical", 52),
    Sketcher.Constraint("Horizontal", 53),
    Sketcher.Constraint("Vertical", 54),
    Sketcher.Constraint("Horizontal", 55),
    Sketcher.Constraint("Vertical", 56),
    Sketcher.Constraint("Horizontal", 57),
    Sketcher.Constraint("Vertical", 58),
    Sketcher.Constraint("Horizontal", 59),
    Sketcher.Constraint("Symmetric", 0, 2, 2, 2, -1, 1),
    Sketcher.Constraint("Symmetric", 6, 2, 32, 2, -1, 1),
    Sketcher.Constraint("Symmetric", 4, 2, 34, 2, -1, 1),
    Sketcher.Constraint("Symmetric", 10, 2, 36, 2, -1, 1),
    Sketcher.Constraint("Symmetric", 8, 2, 38, 2, -1, 1),
    Sketcher.Constraint("Symmetric", 14, 2, 40, 2, -1, 1),
    Sketcher.Constraint("Symmetric", 12, 2, 42, 2, -1, 1),
    Sketcher.Constraint("Symmetric", 18, 2, 44, 2, -1, 1),
    Sketcher.Constraint("Symmetric", 16, 2, 46, 2, -1, 1),
    Sketcher.Constraint("Symmetric", 22, 2, 48, 2, -1, 1),
    Sketcher.Constraint("Symmetric", 20, 2, 50, 2, -1, 1),
    Sketcher.Constraint("Symmetric", 26, 2, 52, 2, -1, 1),
    Sketcher.Constraint("Symmetric", 24, 2, 54, 2, -1, 1),
    Sketcher.Constraint("Symmetric", 30, 2, 56, 2, -1, 1),
    Sketcher.Constraint("Symmetric", 28, 2, 58, 2, -1, 1),
    Sketcher.Constraint("Horizontal", 1, 2, 4, 2),
    Sketcher.Constraint("Horizontal", 3, 2, 6, 2),
    Sketcher.Constraint("Horizontal", 5, 2, 8, 2),
    Sketcher.Constraint("Horizontal", 7, 2, 10, 2),
    Sketcher.Constraint("Horizontal", 9, 2, 12, 2),
    Sketcher.Constraint("Horizontal", 11, 2, 14, 2),
    Sketcher.Constraint("Horizontal", 13, 2, 16, 2),
    Sketcher.Constraint("Horizontal", 15, 2, 18, 2),
    Sketcher.Constraint("Horizontal", 17, 2, 20, 2),
    Sketcher.Constraint("Horizontal", 19, 2, 22, 2),
    Sketcher.Constraint("Horizontal", 21, 2, 24, 2),
    Sketcher.Constraint("Horizontal", 23, 2, 26, 2),
    Sketcher.Constraint("Horizontal", 25, 2, 28, 2),
    Sketcher.Constraint("Horizontal", 27, 2, 30, 2),
    Sketcher.Constraint("Equal", 3, 5),
    Sketcher.Constraint("Equal", 7, 9),
    Sketcher.Constraint("Equal", 11, 13),
    Sketcher.Constraint("Equal", 15, 17),
    Sketcher.Constraint("Equal", 19, 21),
    Sketcher.Constraint("Equal", 23, 25),
    Sketcher.Constraint("Equal", 27, 29),
    Sketcher.Constraint("DistanceY", 0, 1, 0, 2, Q("4 in")),
    Sketcher.Constraint("DistanceX", 8, 2, 0, 2, Q("0.5 in")),
    Sketcher.Constraint("DistanceX", 12, 2, 4, 2, Q("0.5 in")),
    Sketcher.Constraint("DistanceX", 16, 2, 8, 2, Q("0.5 in")),
    Sketcher.Constraint("DistanceX", 20, 2, 12, 2, Q("0.5 in")),
    Sketcher.Constraint("DistanceX", 24, 2, 16, 2, Q("0.5 in")),
    Sketcher.Constraint("DistanceX", 28, 2, 20, 2, Q("0.5 in")),
    Sketcher.Constraint("DistanceX", 4, 2, 32, 2, Q("0.5 in")),
    Sketcher.Constraint("DistanceX", 1, 1, 1, 2, Q("0.125 in")),
])
pocket5 = body.newObject("PartDesign::Pocket", "Pocket004")
pocket5.Profile = sketch11
pocket5.Length = Q("0.3 in")
pocket5.Reversed = True
doc.recompute()

fillet = body.newObject("PartDesign::Fillet", "Fillet")
fillet.Base = (pocket5, edges_at(pocket5, [
    (48.419, 72.39, -50.8),
    (41.275, 72.39, -50.8),
    (34.925, 72.39, -50.8),
    (28.575, 72.39, -50.8),
    (22.225, 72.39, -50.8),
    (15.875, 72.39, -50.8),
    (9.525, 72.39, -50.8),
    (3.175, 72.39, -50.8),
    (-3.175, 72.39, -50.8),
    (-9.525, 72.39, -50.8),
    (-15.875, 72.39, -50.8),
    (-22.225, 72.39, -50.8),
    (-28.575, 72.39, -50.8),
    (-34.925, 72.39, -50.8),
    (-41.275, 72.39, -50.8),
    (-48.419, 72.39, -50.8),
    (48.419, 72.39, 50.8),
    (41.275, 72.39, 50.8),
    (34.925, 72.39, 50.8),
    (28.575, 72.39, 50.8),
    (22.225, 72.39, 50.8),
    (15.875, 72.39, 50.8),
    (9.525, 72.39, 50.8),
    (3.175, 72.39, 50.8),
    (-3.175, 72.39, 50.8),
    (-9.525, 72.39, 50.8),
    (-15.875, 72.39, 50.8),
    (-22.225, 72.39, 50.8),
    (-28.575, 72.39, 50.8),
    (-34.925, 72.39, 50.8),
    (-41.275, 72.39, 50.8),
    (-48.419, 72.39, 50.8),
]))
fillet.Radius = Q("0.3 in")
body2 = doc.addObject("PartDesign::Body", "Body001")

sketch12 = body2.newObject("Sketcher::SketchObject", "Sketch011")
sketch12.AttachmentSupport = (doc.getObject("YZ_Plane001"), [""])
sketch12.MapMode = "FlatFace"
sketch12.addGeometry([
    Part.LineSegment(App.Vector(-101.22199, -11.677004, 0), App.Vector(0, 43.868876, 0)),
    Part.LineSegment(App.Vector(0, 43.868876, 0), App.Vector(-7.027734, 46.94351, 0)),
    Part.LineSegment(App.Vector(-7.027734, 46.94351, 0), App.Vector(-104.1452, -6.35, 0)),
    Part.LineSegment(App.Vector(-104.1452, -6.35, 0), App.Vector(-101.22199, -11.677004, 0)),
], False)
sketch12.addConstraint([
    Sketcher.Constraint("Coincident", 0, 2, 1, 1),
    Sketcher.Constraint("Coincident", 1, 2, 2, 1),
    Sketcher.Constraint("Coincident", 2, 2, 3, 1),
    Sketcher.Constraint("Coincident", 3, 2, 0, 1),
    Sketcher.Constraint("PointOnObject", 0, 2, -2),
    Sketcher.Constraint("Parallel", 0, 2),
    Sketcher.Constraint("Perpendicular", 2, 3),
    Sketcher.Constraint("DistanceY", 2, 2, -1, 1, Q("0.25 in")),
    Sketcher.Constraint("DistanceX", 2, 2, -1, 1, Q("104.1452 mm")),
    Sketcher.Constraint("Distance", 0, Q("115.460972 mm")),
    Sketcher.Constraint("Distance", 1, Q("7.670881 mm")),
    Sketcher.Constraint("Distance", 2, Q("110.779061 mm")),
])
pad7 = body2.newObject("PartDesign::Pad", "Pad006")
pad7.Profile = sketch12
pad7.Length = Q("0.25 in")
pad7.Midplane = True
body3 = doc.addObject("PartDesign::Body", "Body002")

sketch13 = body3.newObject("Sketcher::SketchObject", "Sketch012")
sketch13.AttachmentSupport = (doc.getObject("YZ_Plane002"), [""])
sketch13.MapMode = "FlatFace"
sketch13.addGeometry([
    Part.LineSegment(App.Vector(-7.027734, 46.94351, 0), App.Vector(0, 50.8, 0)),
    Part.LineSegment(App.Vector(0, 50.8, 0), App.Vector(-101.6, 95.25, 0)),
    Part.LineSegment(App.Vector(-101.6, 95.25, 0), App.Vector(-104.1452, 89.432401, 0)),
    Part.LineSegment(App.Vector(-104.1452, 89.432401, 0), App.Vector(-7.027734, 46.94351, 0)),
], False)
sketch13.addConstraint([
    Sketcher.Constraint("Coincident", 0, 2, 1, 1),
    Sketcher.Constraint("Coincident", 1, 2, 2, 1),
    Sketcher.Constraint("Coincident", 2, 2, 3, 1),
    Sketcher.Constraint("Coincident", 3, 2, 0, 1),
    Sketcher.Constraint("PointOnObject", 0, 2, -2),
    Sketcher.Constraint("Perpendicular", 1, 2),
    Sketcher.Constraint("Perpendicular", 2, 3),
    Sketcher.Constraint("DistanceY", -1, 1, 0, 2, Q("2 in")),
    Sketcher.Constraint("DistanceX", 1, 2, -1, 1, Q("4 in")),
    Sketcher.Constraint("Distance", 2, Q("0.25 in")),
    Sketcher.Constraint("DistanceY", -1, 1, 1, 2, Q("3.75 in")),
    Sketcher.Constraint("Distance", 0, Q("8.016331 mm")),
])
pad8 = body3.newObject("PartDesign::Pad", "Pad007")
pad8.Profile = sketch13
pad8.Length = Q("0.25 in")
pad8.Midplane = True

doc.recompute()
